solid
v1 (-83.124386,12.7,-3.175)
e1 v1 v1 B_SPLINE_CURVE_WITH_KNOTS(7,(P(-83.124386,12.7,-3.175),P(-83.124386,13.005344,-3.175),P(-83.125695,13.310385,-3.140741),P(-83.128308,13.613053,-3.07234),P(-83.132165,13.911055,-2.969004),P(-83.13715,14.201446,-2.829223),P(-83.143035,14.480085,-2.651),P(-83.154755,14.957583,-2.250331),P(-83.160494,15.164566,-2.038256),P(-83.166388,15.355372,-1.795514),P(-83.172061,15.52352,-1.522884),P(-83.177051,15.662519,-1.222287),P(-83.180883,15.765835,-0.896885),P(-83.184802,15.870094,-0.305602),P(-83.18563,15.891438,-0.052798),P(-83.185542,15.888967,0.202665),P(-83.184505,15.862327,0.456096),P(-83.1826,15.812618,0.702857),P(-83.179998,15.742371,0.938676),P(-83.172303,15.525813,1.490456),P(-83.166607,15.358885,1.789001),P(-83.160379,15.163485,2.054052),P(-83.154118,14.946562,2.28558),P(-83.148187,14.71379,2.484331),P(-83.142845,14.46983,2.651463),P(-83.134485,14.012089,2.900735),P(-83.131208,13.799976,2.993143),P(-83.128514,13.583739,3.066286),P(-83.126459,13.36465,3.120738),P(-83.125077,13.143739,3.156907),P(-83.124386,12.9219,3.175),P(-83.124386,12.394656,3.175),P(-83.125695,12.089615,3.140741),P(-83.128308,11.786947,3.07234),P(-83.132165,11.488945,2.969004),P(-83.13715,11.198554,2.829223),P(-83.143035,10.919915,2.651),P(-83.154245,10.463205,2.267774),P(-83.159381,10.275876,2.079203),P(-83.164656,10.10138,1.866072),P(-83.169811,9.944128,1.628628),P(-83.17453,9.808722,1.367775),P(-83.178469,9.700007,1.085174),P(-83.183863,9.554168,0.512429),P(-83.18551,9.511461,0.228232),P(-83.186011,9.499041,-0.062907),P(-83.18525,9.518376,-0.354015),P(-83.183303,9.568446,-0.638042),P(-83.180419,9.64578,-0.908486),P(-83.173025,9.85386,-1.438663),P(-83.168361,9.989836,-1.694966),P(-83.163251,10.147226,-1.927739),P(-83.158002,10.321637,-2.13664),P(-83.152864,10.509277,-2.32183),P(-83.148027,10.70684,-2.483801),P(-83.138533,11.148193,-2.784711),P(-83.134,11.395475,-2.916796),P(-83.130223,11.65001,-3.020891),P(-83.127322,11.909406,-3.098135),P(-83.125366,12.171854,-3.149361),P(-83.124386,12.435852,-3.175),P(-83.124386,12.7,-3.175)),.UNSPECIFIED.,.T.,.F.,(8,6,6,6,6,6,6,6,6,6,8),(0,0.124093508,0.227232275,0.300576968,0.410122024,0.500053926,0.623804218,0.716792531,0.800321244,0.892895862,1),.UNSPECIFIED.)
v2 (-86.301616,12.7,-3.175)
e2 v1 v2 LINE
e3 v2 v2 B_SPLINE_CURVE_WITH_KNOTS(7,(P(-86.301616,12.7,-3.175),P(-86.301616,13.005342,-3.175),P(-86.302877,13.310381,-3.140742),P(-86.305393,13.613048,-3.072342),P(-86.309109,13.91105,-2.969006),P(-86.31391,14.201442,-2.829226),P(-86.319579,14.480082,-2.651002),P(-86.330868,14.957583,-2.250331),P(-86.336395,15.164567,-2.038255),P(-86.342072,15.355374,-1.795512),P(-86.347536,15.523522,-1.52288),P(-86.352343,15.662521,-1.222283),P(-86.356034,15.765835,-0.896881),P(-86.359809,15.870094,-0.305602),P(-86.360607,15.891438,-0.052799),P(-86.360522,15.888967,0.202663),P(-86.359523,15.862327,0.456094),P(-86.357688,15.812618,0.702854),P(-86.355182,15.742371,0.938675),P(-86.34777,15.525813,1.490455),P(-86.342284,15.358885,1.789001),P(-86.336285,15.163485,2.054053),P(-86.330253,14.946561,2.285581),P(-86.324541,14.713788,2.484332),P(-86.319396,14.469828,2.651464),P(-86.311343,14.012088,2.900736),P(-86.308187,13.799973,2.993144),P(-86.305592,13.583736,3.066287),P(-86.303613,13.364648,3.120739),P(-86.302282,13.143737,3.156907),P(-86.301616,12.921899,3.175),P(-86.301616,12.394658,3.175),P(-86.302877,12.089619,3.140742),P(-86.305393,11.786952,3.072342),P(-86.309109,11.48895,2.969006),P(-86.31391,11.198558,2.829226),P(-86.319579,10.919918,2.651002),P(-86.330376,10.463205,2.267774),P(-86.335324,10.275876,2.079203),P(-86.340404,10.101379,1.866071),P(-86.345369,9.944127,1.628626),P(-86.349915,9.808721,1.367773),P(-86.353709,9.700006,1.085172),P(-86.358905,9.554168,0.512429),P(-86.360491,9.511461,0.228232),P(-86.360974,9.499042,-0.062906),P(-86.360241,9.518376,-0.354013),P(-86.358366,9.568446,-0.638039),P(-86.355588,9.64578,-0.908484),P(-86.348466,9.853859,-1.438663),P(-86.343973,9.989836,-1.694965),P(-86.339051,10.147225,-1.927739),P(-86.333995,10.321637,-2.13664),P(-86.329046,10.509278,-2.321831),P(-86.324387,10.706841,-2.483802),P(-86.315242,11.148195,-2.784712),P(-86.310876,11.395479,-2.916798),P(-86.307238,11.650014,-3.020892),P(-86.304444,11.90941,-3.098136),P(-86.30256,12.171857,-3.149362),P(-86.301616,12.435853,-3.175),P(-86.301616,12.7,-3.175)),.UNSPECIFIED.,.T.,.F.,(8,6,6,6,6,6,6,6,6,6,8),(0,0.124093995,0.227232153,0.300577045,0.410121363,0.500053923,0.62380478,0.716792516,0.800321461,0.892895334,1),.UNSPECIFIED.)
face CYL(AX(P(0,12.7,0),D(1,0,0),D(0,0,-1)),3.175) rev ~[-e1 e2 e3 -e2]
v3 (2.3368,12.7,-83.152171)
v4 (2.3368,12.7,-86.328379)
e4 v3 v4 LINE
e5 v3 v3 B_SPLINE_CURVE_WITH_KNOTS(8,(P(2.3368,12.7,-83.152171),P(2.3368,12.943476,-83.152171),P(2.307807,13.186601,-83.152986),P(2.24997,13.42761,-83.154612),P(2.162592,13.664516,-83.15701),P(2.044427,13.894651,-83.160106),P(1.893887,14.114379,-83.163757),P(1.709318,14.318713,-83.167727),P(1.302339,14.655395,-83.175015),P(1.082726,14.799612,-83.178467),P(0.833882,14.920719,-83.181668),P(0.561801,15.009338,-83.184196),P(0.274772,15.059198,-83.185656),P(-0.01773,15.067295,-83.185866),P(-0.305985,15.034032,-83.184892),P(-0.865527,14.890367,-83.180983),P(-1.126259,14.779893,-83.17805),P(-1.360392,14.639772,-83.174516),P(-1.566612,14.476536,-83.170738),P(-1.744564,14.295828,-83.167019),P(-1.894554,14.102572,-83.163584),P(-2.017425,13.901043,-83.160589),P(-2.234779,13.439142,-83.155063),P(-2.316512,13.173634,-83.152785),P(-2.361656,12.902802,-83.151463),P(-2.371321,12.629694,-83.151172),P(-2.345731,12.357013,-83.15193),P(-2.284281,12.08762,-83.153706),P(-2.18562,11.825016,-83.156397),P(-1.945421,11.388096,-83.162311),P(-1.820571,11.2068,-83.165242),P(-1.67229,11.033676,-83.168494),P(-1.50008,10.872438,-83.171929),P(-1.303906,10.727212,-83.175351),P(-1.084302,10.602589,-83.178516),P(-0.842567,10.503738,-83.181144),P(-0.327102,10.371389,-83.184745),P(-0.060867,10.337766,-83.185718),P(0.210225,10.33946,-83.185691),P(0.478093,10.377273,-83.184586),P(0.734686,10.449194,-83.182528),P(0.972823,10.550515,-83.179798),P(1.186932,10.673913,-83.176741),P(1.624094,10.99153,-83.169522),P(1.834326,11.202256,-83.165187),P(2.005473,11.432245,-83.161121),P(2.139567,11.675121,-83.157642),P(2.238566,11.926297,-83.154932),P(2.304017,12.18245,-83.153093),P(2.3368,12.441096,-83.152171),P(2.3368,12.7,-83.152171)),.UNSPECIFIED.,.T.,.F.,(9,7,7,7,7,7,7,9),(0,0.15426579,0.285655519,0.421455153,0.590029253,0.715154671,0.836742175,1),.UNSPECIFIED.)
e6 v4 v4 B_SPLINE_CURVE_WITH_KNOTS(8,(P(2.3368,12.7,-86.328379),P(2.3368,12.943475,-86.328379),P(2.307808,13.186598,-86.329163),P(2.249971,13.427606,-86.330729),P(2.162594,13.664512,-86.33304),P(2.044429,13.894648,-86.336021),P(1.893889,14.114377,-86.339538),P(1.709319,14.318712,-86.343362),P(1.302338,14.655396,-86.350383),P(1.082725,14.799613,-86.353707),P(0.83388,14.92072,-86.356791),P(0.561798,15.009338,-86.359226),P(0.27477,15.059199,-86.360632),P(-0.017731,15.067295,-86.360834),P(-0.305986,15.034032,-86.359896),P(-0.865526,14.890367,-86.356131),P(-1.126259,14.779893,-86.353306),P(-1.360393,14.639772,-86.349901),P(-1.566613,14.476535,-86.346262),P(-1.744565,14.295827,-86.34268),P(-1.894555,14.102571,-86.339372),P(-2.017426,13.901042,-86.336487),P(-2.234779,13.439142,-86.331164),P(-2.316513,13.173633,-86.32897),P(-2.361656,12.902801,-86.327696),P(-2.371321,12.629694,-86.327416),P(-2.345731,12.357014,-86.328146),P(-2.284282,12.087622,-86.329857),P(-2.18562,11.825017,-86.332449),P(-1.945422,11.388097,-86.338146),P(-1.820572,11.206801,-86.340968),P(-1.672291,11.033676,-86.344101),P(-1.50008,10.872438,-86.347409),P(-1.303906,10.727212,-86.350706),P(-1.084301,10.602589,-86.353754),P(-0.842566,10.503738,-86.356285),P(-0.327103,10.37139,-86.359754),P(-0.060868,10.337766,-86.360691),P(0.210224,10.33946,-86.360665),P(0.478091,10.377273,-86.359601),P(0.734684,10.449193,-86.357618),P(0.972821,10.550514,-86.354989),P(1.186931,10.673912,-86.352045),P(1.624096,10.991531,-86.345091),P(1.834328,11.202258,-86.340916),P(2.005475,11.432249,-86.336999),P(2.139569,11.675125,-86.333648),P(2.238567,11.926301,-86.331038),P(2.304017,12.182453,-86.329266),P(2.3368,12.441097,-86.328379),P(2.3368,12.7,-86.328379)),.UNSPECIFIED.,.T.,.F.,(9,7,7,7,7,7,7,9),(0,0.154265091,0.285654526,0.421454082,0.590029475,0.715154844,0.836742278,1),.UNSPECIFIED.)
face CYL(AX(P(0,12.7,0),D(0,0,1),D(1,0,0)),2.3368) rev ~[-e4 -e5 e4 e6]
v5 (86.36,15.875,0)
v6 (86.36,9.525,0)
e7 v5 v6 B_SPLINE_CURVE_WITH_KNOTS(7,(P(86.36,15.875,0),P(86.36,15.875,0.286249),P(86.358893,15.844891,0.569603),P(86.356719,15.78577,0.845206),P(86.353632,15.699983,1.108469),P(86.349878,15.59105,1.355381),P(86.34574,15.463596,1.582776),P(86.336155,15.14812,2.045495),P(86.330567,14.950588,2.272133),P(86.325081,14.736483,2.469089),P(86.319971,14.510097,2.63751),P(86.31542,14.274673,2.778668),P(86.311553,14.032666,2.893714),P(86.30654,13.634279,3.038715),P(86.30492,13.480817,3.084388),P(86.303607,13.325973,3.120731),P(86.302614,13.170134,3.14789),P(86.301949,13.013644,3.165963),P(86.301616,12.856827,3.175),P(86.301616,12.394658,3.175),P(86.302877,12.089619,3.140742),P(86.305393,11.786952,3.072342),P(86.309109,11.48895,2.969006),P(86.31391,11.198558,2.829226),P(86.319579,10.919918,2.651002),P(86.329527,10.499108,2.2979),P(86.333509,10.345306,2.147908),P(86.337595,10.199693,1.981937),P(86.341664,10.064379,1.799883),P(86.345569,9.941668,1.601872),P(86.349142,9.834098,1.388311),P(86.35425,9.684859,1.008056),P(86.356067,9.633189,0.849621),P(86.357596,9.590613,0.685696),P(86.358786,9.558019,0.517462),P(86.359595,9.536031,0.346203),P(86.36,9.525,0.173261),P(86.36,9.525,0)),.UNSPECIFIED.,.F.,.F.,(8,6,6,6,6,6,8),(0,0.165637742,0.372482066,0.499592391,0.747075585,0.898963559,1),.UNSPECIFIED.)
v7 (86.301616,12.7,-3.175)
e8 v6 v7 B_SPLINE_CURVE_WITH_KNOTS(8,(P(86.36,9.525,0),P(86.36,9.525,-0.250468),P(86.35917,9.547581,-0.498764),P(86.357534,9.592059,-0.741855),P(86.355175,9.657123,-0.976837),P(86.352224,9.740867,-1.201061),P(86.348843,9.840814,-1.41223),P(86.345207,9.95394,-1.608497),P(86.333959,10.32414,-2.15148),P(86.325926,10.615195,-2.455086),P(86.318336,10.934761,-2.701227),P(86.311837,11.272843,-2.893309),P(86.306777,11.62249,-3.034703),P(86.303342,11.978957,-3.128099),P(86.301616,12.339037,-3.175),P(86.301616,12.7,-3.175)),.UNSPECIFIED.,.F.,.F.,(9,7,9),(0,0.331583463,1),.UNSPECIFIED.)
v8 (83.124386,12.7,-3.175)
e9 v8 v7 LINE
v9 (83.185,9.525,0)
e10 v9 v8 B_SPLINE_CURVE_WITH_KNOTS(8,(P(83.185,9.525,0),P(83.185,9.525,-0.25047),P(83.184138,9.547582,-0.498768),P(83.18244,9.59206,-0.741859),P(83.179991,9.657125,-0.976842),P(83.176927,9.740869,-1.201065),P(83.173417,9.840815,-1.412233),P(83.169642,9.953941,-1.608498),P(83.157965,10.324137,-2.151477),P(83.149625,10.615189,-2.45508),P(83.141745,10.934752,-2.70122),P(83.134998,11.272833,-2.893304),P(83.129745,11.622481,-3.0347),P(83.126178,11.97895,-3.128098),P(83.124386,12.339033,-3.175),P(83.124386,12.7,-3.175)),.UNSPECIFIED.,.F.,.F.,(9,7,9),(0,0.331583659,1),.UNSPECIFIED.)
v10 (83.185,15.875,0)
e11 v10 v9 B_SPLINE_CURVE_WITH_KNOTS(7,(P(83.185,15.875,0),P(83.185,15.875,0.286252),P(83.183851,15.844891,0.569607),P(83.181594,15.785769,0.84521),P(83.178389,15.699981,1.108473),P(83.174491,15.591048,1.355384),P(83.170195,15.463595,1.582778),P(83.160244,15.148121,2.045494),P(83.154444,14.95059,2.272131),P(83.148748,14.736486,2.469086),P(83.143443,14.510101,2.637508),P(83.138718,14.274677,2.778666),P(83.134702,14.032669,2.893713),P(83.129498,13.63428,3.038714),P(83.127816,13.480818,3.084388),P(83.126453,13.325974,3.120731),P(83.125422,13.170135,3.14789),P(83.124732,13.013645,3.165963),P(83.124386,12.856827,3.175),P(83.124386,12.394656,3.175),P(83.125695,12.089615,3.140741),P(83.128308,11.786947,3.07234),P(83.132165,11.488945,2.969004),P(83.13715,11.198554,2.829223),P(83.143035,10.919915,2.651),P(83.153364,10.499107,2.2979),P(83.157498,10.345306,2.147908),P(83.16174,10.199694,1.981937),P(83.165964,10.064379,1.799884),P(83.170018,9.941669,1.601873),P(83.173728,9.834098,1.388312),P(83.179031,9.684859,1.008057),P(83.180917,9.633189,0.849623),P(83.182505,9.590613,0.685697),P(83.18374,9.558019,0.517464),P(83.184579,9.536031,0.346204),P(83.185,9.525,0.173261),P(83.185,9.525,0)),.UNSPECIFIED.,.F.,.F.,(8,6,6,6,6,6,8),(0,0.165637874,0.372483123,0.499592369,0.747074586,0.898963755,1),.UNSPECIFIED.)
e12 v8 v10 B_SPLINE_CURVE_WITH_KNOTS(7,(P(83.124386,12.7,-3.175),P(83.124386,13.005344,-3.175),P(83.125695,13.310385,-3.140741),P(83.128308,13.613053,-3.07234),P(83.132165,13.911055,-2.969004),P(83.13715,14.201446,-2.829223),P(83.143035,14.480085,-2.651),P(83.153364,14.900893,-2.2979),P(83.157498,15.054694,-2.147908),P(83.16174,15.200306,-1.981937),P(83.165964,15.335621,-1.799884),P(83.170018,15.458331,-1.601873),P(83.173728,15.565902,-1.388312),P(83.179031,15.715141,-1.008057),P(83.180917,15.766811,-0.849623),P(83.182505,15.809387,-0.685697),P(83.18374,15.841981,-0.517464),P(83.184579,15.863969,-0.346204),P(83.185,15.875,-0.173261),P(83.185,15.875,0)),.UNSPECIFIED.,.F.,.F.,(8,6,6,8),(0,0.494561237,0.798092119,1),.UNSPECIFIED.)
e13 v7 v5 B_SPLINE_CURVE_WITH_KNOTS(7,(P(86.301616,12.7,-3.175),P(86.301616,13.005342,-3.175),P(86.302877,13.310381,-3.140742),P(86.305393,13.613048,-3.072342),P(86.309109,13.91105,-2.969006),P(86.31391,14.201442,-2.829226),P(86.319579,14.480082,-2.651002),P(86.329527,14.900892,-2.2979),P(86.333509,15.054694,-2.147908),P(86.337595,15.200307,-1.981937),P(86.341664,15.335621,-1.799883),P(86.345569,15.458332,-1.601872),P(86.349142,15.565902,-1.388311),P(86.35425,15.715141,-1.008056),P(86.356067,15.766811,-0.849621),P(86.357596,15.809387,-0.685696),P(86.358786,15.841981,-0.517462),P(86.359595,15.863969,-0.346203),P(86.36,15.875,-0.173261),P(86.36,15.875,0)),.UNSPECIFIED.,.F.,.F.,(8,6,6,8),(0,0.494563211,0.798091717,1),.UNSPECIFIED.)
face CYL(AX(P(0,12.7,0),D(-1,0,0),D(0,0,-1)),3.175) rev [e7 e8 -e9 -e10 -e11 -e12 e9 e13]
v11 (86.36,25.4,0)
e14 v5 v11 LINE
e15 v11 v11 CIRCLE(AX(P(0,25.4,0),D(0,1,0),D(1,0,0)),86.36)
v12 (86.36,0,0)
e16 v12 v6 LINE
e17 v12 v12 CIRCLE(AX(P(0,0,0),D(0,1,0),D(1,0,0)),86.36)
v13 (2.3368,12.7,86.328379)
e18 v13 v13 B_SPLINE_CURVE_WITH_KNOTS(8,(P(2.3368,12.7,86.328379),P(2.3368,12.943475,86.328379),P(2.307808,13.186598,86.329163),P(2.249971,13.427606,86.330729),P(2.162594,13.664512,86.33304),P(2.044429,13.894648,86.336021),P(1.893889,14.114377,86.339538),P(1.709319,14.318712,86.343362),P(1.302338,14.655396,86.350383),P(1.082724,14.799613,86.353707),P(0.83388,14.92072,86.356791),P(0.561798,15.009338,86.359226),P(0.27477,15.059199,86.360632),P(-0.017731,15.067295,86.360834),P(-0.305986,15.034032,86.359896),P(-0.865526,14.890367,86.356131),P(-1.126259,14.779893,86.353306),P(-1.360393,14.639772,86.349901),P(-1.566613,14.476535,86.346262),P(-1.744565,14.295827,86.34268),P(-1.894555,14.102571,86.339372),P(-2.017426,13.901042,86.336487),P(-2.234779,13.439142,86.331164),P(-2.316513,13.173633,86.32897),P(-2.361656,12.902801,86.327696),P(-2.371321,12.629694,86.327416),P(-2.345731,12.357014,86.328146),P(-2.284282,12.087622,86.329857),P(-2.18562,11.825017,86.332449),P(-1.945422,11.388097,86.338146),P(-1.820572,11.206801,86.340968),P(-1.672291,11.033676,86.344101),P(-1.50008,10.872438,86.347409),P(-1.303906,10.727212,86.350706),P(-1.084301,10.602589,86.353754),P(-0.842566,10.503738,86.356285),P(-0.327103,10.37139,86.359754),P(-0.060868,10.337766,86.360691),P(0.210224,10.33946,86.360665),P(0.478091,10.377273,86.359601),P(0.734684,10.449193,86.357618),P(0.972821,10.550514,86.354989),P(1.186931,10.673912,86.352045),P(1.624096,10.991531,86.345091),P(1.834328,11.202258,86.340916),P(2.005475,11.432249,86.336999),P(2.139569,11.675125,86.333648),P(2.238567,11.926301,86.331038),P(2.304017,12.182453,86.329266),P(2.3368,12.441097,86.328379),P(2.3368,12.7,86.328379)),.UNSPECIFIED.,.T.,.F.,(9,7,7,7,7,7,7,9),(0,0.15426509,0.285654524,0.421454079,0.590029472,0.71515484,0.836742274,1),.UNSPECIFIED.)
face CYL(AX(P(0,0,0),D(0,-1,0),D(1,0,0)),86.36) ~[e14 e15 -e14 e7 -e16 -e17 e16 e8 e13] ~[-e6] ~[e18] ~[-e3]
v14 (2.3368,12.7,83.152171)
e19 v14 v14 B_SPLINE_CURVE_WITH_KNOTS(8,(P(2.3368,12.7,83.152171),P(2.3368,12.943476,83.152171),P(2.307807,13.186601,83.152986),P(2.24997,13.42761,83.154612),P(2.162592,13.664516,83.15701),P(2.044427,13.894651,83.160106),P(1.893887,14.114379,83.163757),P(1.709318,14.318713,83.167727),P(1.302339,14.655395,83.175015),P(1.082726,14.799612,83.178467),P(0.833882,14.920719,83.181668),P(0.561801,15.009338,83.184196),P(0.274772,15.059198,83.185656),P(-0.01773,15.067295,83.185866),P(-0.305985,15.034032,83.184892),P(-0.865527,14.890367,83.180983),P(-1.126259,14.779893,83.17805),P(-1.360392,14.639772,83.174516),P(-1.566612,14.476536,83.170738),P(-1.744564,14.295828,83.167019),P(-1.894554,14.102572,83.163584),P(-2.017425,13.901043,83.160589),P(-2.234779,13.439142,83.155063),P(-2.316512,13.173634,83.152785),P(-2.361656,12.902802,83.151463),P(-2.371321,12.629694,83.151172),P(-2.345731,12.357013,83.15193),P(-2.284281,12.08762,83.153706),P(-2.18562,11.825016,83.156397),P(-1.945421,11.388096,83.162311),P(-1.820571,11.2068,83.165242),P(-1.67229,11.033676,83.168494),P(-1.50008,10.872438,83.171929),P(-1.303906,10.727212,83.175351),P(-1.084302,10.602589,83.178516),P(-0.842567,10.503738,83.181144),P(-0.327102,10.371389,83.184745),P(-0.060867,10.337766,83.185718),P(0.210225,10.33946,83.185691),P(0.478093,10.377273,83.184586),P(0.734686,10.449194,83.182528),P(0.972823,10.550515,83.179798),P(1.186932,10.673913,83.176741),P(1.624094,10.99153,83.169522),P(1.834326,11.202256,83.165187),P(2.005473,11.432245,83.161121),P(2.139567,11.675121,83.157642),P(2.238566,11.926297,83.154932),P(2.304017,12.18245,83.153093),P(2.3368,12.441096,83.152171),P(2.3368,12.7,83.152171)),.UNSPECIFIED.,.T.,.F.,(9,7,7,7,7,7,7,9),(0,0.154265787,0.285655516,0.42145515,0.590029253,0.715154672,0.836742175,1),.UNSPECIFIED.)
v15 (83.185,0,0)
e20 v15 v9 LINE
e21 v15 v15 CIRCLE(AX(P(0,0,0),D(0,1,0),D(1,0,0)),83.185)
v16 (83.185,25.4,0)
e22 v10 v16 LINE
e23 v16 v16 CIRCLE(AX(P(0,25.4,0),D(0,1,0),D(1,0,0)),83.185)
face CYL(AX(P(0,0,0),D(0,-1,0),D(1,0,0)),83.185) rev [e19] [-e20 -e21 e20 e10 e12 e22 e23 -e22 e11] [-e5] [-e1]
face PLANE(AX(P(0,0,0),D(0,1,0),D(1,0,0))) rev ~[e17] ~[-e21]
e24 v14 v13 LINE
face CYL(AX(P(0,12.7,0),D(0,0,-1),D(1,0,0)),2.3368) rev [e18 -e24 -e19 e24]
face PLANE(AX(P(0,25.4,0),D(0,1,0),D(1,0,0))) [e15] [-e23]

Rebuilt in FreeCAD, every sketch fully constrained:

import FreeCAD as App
import Part
import Sketcher
from FreeCAD import Vector
Q = App.Units.Quantity

doc = App.newDocument("Part")
body = doc.addObject("PartDesign::Body", "Body")

# Sketch on XZ plane
sketch1 = body.newObject("Sketcher::SketchObject", "Sketch")
sketch1.AttachmentSupport = (doc.getObject("XZ_Plane"), [""])
sketch1.MapMode = "FlatFace"
sketch1.addGeometry(Part.Circle(Vector(0, 0, 0), Vector(0, 0, 1), 86.36), False)
sketch1.addGeometry(Part.Circle(Vector(0, 0, 0), Vector(0, 0, 1), 83.185), False)
sketch1.addConstraint(Sketcher.Constraint("Coincident", 0, 3, -1, 1))
sketch1.addConstraint(Sketcher.Constraint("Coincident", 1, 3, -1, 1))
sketch1.addConstraint(Sketcher.Constraint("Diameter", 0, Q("6.8 in")))
sketch1.addConstraint(Sketcher.Constraint("Diameter", 1, Q("6.55 in")))
pad1 = body.newObject("PartDesign::Pad", "Pad")
pad1.Profile = sketch1
pad1.Length = Q("1 in")
pad1.Reversed = True

# Sketch on YZ plane
sketch2 = body.newObject("Sketcher::SketchObject", "Sketch001")
sketch2.AttachmentSupport = (doc.getObject("YZ_Plane"), [""])
sketch2.MapMode = "FlatFace"
sketch2.addGeometry(Part.Circle(Vector(12.7, 0, 0), Vector(0, 0, 1), 3.175), False)
sketch2.addConstraint(Sketcher.Constraint("PointOnObject", 0, 3, -1))
sketch2.addConstraint(Sketcher.Constraint("Diameter", 0, Q("0.25 in")))
sketch2.addConstraint(Sketcher.Constraint("DistanceX", -1, 1, 0, 3, Q("0.5 in")))
pocket1 = body.newObject("PartDesign::Pocket", "Pocket")
pocket1.Profile = sketch2
pocket1.Type = "ThroughAll"
pocket1.Midplane = True

# Sketch on XY plane
sketch3 = body.newObject("Sketcher::SketchObject", "Sketch002")
sketch3.AttachmentSupport = (doc.getObject("XY_Plane"), [""])
sketch3.MapMode = "FlatFace"
sketch3.addGeometry(Part.Circle(Vector(0, 12.7, 0), Vector(0, 0, 1), 2.3368), False)
sketch3.addConstraint(Sketcher.Constraint("PointOnObject", 0, 3, -2))
sketch3.addConstraint(Sketcher.Constraint("Diameter", 0, Q("0.184 in")))
sketch3.addConstraint(Sketcher.Constraint("DistanceY", -1, 1, 0, 3, Q("0.5 in")))
pocket2 = body.newObject("PartDesign::Pocket", "Pocket001")
pocket2.Profile = sketch3
pocket2.Type = "ThroughAll"
pocket2.Midplane = True

doc.recompute()
